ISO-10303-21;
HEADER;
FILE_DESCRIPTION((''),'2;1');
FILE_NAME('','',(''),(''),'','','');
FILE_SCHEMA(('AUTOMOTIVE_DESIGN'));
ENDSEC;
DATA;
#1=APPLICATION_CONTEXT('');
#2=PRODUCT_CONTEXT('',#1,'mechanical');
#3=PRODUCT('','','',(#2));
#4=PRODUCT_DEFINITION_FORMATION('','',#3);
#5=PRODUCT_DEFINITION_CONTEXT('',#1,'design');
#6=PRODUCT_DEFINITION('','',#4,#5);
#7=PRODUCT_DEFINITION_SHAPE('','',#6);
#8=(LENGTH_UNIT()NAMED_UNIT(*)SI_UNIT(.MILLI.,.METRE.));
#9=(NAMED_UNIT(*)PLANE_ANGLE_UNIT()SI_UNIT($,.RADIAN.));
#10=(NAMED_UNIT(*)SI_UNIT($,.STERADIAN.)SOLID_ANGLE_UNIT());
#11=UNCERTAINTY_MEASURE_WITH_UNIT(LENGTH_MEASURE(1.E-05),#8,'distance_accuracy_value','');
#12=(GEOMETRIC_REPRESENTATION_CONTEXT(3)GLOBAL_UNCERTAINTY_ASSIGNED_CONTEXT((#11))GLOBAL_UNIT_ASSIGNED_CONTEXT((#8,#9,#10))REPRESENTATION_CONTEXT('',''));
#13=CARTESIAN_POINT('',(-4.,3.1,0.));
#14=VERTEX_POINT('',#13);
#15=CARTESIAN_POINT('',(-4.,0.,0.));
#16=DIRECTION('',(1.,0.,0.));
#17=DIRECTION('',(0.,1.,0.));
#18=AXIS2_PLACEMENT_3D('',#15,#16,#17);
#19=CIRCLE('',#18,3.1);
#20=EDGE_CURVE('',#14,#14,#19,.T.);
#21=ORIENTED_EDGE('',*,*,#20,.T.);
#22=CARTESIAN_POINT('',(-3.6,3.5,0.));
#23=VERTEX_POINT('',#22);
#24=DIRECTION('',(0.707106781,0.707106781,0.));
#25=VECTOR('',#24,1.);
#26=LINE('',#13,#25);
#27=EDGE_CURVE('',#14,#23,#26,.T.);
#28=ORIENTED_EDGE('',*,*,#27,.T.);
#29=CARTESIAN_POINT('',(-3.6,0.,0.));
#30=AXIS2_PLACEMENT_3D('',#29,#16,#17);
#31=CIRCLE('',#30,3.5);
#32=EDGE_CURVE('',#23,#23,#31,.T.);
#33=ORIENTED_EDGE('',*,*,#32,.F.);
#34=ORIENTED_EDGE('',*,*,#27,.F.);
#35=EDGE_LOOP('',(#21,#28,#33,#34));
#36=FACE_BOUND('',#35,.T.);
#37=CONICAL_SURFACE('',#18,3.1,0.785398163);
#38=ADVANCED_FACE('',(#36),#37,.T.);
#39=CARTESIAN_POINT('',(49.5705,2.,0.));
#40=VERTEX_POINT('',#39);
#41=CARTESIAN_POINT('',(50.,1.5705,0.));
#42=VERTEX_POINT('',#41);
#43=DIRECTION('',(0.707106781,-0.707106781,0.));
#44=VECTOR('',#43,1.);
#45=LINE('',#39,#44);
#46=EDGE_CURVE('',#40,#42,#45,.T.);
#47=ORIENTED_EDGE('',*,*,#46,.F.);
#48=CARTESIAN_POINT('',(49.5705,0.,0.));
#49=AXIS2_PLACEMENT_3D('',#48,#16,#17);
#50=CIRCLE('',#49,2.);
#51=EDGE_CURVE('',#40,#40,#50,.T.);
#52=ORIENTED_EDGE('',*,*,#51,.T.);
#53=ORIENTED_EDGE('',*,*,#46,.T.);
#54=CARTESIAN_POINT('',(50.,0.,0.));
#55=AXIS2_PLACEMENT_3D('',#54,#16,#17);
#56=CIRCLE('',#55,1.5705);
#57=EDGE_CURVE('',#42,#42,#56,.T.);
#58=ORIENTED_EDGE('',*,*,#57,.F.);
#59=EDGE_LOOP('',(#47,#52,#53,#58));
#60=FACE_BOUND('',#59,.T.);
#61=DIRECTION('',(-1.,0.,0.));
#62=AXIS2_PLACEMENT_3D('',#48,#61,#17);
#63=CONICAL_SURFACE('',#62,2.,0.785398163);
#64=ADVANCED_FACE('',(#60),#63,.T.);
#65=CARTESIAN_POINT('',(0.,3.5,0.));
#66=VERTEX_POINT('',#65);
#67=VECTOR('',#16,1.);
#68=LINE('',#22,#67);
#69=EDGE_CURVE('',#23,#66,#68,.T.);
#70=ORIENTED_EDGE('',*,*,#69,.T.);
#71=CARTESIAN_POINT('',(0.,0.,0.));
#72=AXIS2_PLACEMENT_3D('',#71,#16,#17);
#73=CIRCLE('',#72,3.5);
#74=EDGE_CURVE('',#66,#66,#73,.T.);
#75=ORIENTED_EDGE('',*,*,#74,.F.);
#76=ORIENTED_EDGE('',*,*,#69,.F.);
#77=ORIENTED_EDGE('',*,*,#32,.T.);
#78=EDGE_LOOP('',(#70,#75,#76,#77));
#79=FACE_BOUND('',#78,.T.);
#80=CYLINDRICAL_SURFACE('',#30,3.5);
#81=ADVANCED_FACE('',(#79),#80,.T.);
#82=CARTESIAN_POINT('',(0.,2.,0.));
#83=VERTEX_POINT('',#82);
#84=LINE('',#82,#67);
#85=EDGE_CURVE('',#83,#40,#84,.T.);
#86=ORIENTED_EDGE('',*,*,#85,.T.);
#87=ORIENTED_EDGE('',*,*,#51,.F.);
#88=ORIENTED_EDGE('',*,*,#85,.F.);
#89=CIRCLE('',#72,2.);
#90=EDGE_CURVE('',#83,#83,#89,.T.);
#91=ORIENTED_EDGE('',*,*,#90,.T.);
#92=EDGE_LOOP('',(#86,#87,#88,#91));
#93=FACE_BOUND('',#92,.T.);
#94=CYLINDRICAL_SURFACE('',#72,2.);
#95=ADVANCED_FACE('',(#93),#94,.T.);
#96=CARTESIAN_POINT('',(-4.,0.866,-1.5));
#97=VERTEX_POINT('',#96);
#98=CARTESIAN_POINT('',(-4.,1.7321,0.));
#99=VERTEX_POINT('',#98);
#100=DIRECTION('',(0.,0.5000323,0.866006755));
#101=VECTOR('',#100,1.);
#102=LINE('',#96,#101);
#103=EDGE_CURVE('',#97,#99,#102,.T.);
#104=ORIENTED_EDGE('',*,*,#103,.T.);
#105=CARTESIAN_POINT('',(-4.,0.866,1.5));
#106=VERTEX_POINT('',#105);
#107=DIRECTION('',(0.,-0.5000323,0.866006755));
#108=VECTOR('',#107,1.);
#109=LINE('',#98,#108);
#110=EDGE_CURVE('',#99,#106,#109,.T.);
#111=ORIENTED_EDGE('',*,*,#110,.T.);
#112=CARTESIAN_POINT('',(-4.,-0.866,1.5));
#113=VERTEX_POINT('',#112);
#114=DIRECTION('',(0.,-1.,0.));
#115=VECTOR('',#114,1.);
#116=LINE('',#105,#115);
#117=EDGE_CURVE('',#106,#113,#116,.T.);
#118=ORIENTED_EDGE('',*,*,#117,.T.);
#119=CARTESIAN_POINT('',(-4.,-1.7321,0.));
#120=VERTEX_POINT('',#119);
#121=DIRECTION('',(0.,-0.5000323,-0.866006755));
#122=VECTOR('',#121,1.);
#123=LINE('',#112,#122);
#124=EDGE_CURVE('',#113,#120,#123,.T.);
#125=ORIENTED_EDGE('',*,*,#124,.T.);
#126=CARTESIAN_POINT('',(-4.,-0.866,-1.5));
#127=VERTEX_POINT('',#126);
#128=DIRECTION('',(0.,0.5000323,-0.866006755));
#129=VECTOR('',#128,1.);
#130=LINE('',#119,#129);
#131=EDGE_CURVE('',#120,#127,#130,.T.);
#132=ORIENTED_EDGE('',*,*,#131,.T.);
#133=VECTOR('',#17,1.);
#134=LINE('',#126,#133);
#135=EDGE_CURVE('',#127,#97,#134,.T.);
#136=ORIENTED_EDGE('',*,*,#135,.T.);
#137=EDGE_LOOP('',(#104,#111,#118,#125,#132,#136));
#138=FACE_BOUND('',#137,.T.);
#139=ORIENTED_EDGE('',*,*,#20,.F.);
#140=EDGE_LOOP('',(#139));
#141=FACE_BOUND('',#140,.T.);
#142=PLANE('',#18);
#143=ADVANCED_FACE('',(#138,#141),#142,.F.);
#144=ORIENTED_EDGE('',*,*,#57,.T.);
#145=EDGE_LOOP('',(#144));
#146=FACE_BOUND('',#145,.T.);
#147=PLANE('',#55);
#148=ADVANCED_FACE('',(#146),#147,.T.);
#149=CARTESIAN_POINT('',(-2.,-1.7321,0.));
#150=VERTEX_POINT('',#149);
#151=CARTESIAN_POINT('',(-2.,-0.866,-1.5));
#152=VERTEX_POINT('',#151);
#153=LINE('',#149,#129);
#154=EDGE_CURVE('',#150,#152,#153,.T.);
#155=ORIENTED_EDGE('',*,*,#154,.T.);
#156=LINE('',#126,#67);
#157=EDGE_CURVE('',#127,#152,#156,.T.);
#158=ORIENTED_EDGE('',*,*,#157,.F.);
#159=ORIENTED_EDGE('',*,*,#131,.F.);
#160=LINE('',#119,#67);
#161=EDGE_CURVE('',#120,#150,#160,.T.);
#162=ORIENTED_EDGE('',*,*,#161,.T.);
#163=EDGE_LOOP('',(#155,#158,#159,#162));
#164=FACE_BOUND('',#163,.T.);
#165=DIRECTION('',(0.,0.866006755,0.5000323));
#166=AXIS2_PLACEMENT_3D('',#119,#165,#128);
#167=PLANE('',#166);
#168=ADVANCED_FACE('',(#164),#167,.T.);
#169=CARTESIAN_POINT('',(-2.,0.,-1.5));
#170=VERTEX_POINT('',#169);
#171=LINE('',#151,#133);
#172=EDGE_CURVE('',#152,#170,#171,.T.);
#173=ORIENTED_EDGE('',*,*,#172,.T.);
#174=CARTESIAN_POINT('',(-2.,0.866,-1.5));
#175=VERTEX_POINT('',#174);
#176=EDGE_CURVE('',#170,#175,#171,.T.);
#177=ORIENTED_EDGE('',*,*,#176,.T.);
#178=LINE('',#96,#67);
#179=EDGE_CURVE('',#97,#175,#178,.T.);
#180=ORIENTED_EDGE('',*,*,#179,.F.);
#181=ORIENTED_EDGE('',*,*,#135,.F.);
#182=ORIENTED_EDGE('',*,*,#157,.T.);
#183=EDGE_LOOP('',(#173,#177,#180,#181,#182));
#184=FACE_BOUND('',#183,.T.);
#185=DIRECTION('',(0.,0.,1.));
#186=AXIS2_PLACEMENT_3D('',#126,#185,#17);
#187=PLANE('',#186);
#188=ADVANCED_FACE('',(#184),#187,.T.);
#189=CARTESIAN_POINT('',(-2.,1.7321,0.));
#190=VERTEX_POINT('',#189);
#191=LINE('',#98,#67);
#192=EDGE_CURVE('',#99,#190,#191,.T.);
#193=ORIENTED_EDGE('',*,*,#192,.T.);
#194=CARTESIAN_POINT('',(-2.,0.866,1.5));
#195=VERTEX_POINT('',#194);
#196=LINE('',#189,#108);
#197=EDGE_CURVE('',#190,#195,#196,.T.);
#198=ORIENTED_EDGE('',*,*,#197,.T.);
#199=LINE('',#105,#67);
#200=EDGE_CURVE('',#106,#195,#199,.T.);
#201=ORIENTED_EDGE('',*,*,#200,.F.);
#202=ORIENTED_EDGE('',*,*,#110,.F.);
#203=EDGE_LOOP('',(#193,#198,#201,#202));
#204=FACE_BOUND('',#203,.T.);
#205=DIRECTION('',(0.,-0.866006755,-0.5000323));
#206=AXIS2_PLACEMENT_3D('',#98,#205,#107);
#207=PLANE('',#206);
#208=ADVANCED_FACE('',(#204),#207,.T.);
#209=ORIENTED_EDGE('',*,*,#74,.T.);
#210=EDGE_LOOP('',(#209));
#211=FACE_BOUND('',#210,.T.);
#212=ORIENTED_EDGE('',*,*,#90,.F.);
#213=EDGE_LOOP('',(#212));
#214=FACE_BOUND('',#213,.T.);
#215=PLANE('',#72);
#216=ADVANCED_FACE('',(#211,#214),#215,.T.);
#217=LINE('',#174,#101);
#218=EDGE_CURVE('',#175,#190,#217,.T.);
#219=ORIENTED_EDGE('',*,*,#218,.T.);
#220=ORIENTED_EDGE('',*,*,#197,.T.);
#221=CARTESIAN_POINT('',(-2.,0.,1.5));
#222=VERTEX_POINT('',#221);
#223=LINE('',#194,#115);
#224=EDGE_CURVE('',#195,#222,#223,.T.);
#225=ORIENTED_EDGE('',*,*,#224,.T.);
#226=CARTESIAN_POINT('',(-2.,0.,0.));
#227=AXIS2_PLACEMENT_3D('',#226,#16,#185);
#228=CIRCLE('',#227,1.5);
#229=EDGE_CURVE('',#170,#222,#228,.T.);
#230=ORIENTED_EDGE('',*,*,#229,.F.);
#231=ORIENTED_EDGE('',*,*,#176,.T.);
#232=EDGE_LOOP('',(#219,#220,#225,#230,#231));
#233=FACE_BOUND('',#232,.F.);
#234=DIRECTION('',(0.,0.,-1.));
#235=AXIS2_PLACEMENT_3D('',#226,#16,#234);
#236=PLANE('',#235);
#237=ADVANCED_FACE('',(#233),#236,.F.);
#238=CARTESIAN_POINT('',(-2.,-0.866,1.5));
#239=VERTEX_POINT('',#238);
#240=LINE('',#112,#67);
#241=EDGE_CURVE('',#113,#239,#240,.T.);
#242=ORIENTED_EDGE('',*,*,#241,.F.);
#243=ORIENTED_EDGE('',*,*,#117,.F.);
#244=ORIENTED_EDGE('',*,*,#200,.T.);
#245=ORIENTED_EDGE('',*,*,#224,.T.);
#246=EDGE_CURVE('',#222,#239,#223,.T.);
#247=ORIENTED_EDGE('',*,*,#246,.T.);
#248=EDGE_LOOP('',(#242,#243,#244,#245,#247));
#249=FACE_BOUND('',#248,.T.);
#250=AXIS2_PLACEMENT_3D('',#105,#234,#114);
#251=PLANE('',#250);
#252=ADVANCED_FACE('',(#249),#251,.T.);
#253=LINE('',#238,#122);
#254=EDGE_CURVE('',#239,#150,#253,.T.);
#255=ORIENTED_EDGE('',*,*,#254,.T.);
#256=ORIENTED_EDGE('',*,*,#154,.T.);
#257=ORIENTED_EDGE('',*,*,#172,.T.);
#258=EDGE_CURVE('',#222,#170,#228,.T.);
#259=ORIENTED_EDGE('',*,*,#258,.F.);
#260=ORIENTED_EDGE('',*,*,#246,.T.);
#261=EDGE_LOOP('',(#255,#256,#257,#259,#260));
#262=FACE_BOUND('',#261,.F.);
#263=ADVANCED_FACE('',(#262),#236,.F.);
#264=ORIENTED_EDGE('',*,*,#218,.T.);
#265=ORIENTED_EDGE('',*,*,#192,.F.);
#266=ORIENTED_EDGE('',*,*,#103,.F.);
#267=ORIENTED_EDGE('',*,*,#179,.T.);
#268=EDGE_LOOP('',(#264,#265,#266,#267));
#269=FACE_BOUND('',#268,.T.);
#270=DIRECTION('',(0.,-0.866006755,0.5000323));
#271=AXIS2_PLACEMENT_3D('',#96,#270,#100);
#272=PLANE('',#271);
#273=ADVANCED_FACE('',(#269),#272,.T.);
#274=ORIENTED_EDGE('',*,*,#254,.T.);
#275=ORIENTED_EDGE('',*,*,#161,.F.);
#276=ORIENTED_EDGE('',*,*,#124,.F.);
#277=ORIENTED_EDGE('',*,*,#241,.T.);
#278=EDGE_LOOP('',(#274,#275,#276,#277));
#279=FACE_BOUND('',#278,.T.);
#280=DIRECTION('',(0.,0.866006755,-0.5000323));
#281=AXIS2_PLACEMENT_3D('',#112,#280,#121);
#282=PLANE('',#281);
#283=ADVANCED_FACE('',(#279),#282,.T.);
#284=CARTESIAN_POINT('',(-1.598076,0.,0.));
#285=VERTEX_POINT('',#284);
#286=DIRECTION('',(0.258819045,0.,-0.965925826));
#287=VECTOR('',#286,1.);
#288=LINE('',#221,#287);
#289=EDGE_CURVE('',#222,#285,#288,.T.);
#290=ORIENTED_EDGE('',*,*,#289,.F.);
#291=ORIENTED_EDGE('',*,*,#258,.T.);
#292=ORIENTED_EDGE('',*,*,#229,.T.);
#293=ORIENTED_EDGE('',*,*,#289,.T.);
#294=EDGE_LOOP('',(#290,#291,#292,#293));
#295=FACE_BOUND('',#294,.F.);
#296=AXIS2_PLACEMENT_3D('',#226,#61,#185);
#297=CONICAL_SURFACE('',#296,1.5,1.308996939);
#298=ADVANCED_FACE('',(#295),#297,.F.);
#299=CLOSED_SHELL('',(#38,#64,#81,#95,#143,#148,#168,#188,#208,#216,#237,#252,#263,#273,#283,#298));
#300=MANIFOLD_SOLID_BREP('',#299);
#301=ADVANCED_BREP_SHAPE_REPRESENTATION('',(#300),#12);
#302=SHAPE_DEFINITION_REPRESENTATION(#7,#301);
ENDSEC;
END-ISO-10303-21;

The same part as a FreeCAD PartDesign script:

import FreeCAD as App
import Part
import Sketcher

V = App.Vector
Q = App.Units.Quantity


def add_polygon(sketch, points):
    """Adds a closed chain of lines whose ends are joined by coincident constraints."""
    first, n = sketch.GeometryCount, len(points)
    for a, b in zip(points, points[1:] + points[:1]):
        sketch.addGeometry(Part.LineSegment(App.Vector(*a, 0), App.Vector(*b, 0)), False)
    for i in range(n):
        sketch.addConstraint(Sketcher.Constraint("Coincident", first + i, 2, first + (i + 1) % n, 1))

doc = App.newDocument("Part")
params = doc.addObject("Spreadsheet::Sheet", "Params")
for row, (alias, value) in enumerate([
    ("sketch1_width", "54 mm"),
    ("sketch1_width2", "3.6 mm"),
    ("sketch1_height", "1.5 mm"),
    ("sketch1_height2", "3.1 mm"),
    ("revolution_angle", "360 deg"),
    ("sketch2_diameter", "3 mm"),
    ("hole_diameter", "3 mm"),
    ("hole_depth", "2 mm"),
    ("pocket1_length", "2 mm"),
], start=1):
    params.set(f"A{row}", alias)
    params.set(f"B{row}", "=" + value)
    params.setAlias(f"B{row}", alias)

body = doc.addObject("PartDesign::Body", "Body")

# Sketch on XY plane
sketch1 = doc.addObject("Sketcher::SketchObject", "Sketch")
body.addObject(sketch1)
sketch1.AttachmentSupport = (doc.XY_Plane, [""])
sketch1.MapMode = "FlatFace"
add_polygon(sketch1, [(-4, 0), (50, 0), (50, 1.6), (49.6, 2), (0, 2), (0, 3.5), (-3.6, 3.5), (-4, 3.1)])  # lines 0-7
sketch1.addConstraint([
    Sketcher.Constraint("Horizontal", 0),
    Sketcher.Constraint("Vertical", 1),
    Sketcher.Constraint("Horizontal", 3),
    Sketcher.Constraint("Vertical", 4),
    Sketcher.Constraint("Horizontal", 5),
    Sketcher.Constraint("Vertical", 7),
    Sketcher.Constraint("PointOnObject", 0, 2, -1),
    Sketcher.Constraint("PointOnObject", 3, 2, -2),
    Sketcher.Constraint("Perpendicular", 2, 6),
    Sketcher.Constraint("DistanceX", 0, 1, 0, 2, Q("54 mm")),
    Sketcher.Constraint("Angle", 2, Q("135 deg")),
    Sketcher.Constraint("DistanceX", 5, 2, 5, 1, Q("3.6 mm")),
    Sketcher.Constraint("DistanceY", 4, 1, 4, 2, Q("1.5 mm")),
    Sketcher.Constraint("DistanceY", 7, 2, 7, 1, Q("3.1 mm")),
    Sketcher.Constraint("DistanceX", -1, 1, 0, 2, Q("50 mm")),
    Sketcher.Constraint("DistanceX", 3, 2, 3, 1, Q("49.5705 mm")),
])
sketch1.setExpression("Constraints[17]", "Params.sketch1_width")
sketch1.setExpression("Constraints[19]", "Params.sketch1_width2")
sketch1.setExpression("Constraints[20]", "Params.sketch1_height")
sketch1.setExpression("Constraints[21]", "Params.sketch1_height2")
revolution = doc.addObject("PartDesign::Revolution", "Revolution")
body.addObject(revolution)
revolution.Profile = sketch1
revolution.ReferenceAxis = (sketch1, ["H_Axis"])
revolution.setExpression("Angle", "Params.revolution_angle")

# Sketch on YZ plane
sketch2 = doc.addObject("Sketcher::SketchObject", "Sketch001")
body.addObject(sketch2)
sketch2.AttachmentSupport = (doc.YZ_Plane, [""])
sketch2.MapMode = "FlatFace"
sketch2.AttachmentOffset = App.Placement(V(0, 0, -4), App.Rotation())
sketch2.addGeometry(Part.Circle(V(0, 0, 0), V(0, 0, 1), 1.5), False)
sketch2.addConstraint([
    Sketcher.Constraint("Coincident", 0, 3, -1, 1),
    Sketcher.Constraint("Diameter", 0, Q("3 mm")),
])
sketch2.setExpression("Constraints[1]", "Params.sketch2_diameter")
doc.recompute()
hole = doc.addObject("PartDesign::Hole", "Hole")
body.addObject(hole)
hole.Profile = sketch2
hole.ThreadType = "None"
hole.setExpression("Diameter", "Params.hole_diameter")
hole.DepthType = "Dimension"
hole.setExpression("Depth", "Params.hole_depth")
hole.DrillPoint = "Angled"
hole.DrillPointAngle = 150
hole.Reversed = True

# Sketch on YZ plane
sketch3 = doc.addObject("Sketcher::SketchObject", "Sketch002")
body.addObject(sketch3)
sketch3.AttachmentSupport = (doc.YZ_Plane, [""])
sketch3.MapMode = "FlatFace"
sketch3.AttachmentOffset = App.Placement(V(0, 0, -4), App.Rotation())
add_polygon(sketch3, [(0.9, 1.5), (-0.9, 1.5), (-1.7, 0), (-0.9, -1.5), (0.9, -1.5), (1.7, 0)])  # lines 0-5
sketch3.addConstraint([
    Sketcher.Constraint("Horizontal", 0),
    Sketcher.Constraint("Horizontal", 3),
    Sketcher.Constraint("Symmetric", 0, 2, 3, 2, -1, 1),
    Sketcher.Constraint("Symmetric", 1, 2, 4, 2, -1, 1),
    Sketcher.Constraint("PointOnObject", 1, 2, -1),
    Sketcher.Constraint("Parallel", 2, 5),
    Sketcher.Constraint("Vertical", 0, 2, 2, 2),
    Sketcher.Constraint("DistanceY", 2, 2, 0, 2, Q("3 mm")),
    Sketcher.Constraint("DistanceX", 0, 2, 0, 1, Q("1.732 mm")),
    Sketcher.Constraint("Distance", 1, Q("1.732 mm")),
])
pocket1 = doc.addObject("PartDesign::Pocket", "Pocket")
body.addObject(pocket1)
pocket1.Profile = sketch3
pocket1.setExpression("Length", "Params.pocket1_length")
pocket1.Reversed = True

doc.recompute()
